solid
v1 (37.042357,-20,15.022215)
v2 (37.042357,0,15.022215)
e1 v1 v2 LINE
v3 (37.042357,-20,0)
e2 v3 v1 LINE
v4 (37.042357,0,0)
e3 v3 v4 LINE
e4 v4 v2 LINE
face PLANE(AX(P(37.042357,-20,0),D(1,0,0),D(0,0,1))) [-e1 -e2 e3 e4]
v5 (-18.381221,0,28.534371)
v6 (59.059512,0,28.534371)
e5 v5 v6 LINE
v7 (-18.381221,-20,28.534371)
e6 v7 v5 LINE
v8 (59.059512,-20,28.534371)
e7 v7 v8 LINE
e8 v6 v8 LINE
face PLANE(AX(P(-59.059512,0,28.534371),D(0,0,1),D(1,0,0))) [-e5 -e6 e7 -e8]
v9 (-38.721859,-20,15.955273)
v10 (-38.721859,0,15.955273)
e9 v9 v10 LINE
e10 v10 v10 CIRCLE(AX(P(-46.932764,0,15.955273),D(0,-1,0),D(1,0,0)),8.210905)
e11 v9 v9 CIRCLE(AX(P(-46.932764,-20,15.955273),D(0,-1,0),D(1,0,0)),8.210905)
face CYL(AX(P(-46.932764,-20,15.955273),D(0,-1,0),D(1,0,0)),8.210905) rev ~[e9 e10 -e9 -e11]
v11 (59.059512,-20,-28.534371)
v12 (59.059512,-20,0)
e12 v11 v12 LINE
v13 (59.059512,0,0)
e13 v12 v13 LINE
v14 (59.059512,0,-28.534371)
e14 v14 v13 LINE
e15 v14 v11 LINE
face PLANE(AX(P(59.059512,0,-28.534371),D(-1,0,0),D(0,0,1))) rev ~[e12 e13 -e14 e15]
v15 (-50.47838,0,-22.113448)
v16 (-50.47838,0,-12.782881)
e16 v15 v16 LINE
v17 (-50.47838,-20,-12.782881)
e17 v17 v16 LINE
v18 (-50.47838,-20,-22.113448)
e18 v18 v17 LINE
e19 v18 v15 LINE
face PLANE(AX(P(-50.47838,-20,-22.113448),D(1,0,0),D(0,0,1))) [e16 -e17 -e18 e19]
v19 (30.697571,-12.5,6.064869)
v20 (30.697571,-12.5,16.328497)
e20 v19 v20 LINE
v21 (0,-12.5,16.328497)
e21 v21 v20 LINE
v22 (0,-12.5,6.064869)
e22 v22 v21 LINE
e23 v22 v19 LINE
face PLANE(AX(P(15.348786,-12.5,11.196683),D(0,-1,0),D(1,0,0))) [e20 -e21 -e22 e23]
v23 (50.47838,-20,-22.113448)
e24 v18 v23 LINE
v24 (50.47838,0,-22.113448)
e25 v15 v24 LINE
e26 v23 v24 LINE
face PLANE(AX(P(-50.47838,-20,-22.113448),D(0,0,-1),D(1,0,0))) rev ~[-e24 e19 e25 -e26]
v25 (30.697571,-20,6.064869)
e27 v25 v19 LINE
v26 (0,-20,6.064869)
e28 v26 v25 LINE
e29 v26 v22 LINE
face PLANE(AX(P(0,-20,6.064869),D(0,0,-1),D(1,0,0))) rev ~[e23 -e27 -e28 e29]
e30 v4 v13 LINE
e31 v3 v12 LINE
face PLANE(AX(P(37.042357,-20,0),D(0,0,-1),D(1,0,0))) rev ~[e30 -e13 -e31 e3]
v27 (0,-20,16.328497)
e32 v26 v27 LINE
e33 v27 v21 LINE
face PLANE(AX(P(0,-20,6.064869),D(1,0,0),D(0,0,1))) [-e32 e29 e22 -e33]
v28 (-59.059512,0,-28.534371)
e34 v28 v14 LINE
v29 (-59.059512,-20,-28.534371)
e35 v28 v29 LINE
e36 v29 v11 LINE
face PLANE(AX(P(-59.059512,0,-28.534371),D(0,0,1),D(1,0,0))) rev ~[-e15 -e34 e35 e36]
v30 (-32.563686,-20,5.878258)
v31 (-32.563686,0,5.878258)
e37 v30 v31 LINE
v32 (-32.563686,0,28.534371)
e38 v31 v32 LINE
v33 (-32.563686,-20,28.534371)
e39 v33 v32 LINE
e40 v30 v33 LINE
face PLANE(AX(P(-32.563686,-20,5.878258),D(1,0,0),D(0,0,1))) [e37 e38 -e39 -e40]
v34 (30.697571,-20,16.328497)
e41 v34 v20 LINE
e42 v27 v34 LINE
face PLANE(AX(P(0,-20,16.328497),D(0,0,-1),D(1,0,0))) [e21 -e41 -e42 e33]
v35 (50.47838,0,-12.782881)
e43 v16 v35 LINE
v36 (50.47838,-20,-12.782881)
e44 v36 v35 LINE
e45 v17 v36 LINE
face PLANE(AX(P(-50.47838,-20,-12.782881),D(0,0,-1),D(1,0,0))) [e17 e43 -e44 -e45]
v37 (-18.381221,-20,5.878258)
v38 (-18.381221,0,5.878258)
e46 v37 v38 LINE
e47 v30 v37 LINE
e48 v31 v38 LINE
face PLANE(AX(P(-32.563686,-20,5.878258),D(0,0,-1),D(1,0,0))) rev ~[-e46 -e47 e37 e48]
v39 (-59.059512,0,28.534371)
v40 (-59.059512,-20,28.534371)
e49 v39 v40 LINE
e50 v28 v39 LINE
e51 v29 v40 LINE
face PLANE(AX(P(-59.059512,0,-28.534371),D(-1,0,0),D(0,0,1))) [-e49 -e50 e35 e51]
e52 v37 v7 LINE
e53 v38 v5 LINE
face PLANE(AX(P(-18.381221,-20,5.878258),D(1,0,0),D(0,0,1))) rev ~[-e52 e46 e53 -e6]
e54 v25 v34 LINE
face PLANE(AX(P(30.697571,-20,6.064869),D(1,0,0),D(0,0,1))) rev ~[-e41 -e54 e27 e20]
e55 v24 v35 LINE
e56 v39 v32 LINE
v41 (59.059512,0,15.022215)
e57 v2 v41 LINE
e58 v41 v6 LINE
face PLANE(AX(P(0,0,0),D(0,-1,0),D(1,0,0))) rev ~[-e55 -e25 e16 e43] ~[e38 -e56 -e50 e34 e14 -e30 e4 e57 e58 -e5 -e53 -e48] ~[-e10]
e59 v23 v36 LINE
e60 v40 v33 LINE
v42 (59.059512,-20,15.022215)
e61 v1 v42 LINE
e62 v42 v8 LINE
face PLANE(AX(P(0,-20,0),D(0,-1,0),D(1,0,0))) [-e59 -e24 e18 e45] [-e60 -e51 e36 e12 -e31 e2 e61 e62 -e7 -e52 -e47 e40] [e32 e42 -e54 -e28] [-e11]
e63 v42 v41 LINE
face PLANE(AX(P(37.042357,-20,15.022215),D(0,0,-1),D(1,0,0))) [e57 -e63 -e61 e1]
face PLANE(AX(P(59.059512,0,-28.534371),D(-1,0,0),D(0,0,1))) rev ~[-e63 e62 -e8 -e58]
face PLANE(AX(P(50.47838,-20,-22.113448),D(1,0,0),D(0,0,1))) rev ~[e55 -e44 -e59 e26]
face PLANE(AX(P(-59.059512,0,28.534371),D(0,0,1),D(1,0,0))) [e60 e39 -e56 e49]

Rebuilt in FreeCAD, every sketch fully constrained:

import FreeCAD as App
import Part
import Sketcher
from FreeCAD import Vector
Q = App.Units.Quantity


def add_polygon(sketch, points):
    """Adds a closed chain of lines whose ends are joined by coincident constraints."""
    first, n = sketch.GeometryCount, len(points)
    for a, b in zip(points, points[1:] + points[:1]):
        sketch.addGeometry(Part.LineSegment(App.Vector(*a, 0), App.Vector(*b, 0)), False)
    for i in range(n):
        sketch.addConstraint(Sketcher.Constraint("Coincident", first + i, 2, first + (i + 1) % n, 1))

doc = App.newDocument("Part")
body = doc.addObject("PartDesign::Body", "Body")

# Sketch on XZ plane
sketch1 = body.newObject("Sketcher::SketchObject", "Sketch")
sketch1.AttachmentSupport = (doc.getObject("XZ_Plane"), [""])
sketch1.MapMode = "FlatFace"
add_polygon(sketch1, [(-59, 29), (-59, -29), (59, -29), (59, 29)])  # lines 0-3
sketch1.addConstraint([
    Sketcher.Constraint("Vertical", 0),
    Sketcher.Constraint("Horizontal", 1),
    Sketcher.Constraint("Vertical", 2),
    Sketcher.Constraint("Horizontal", 3),
    Sketcher.Constraint("Symmetric", 0, 2, 2, 2, -1, 1),
    Sketcher.Constraint("DistanceX", 1, 1, 1, 2, Q("118.119024 mm")),
    Sketcher.Constraint("DistanceY", 0, 2, 0, 1, Q("57.068743 mm")),
])
pad1 = body.newObject("PartDesign::Pad", "Pad")
pad1.Profile = sketch1
pad1.Length = 20

# Sketch on XZ plane
sketch2 = body.newObject("Sketcher::SketchObject", "Sketch001")
sketch2.AttachmentSupport = (doc.getObject("XZ_Plane"), [""])
sketch2.MapMode = "FlatFace"
sketch2.AttachmentOffset = App.Placement(Vector(0, 0, 20), App.Rotation())
sketch2.addGeometry(Part.Circle(Vector(-47, 16, 0), Vector(0, 0, 1), 8), False)
sketch2.addConstraint([
    Sketcher.Constraint("Diameter", 0, Q("16.42181 mm")),
    Sketcher.Constraint("DistanceX", 0, 3, -1, 1, Q("46.932764 mm")),
    Sketcher.Constraint("DistanceY", -1, 1, 0, 3, Q("15.955273 mm")),
])
pocket1 = body.newObject("PartDesign::Pocket", "Pocket")
pocket1.Profile = sketch2
pocket1.Type = "ThroughAll"

# Sketch on XZ plane
sketch3 = body.newObject("Sketcher::SketchObject", "Sketch002")
sketch3.AttachmentSupport = (doc.getObject("XZ_Plane"), [""])
sketch3.MapMode = "FlatFace"
sketch3.AttachmentOffset = App.Placement(Vector(0, 0, 20), App.Rotation())
add_polygon(sketch3, [(-33, 29), (-33, 6), (-18, 6), (-18, 29)])  # lines 0-3
sketch3.addConstraint([
    Sketcher.Constraint("Vertical", 0),
    Sketcher.Constraint("Horizontal", 1),
    Sketcher.Constraint("Vertical", 2),
    Sketcher.Constraint("Horizontal", 3),
    Sketcher.Constraint("DistanceX", 1, 1, 1, 2, Q("14.182465 mm")),
    Sketcher.Constraint("DistanceY", 0, 2, 0, 1, Q("22.656113 mm")),
    Sketcher.Constraint("DistanceY", -1, 1, 0, 2, Q("5.878258 mm")),
    Sketcher.Constraint("DistanceX", 1, 2, -1, 1, Q("18.381221 mm")),
])
pocket2 = body.newObject("PartDesign::Pocket", "Pocket001")
pocket2.Profile = sketch3
pocket2.Type = "ThroughAll"

# Sketch on XZ plane
sketch4 = body.newObject("Sketcher::SketchObject", "Sketch003")
sketch4.AttachmentSupport = (doc.getObject("XZ_Plane"), [""])
sketch4.MapMode = "FlatFace"
sketch4.AttachmentOffset = App.Placement(Vector(0, 0, 20), App.Rotation())
add_polygon(sketch4, [(0, 16), (0, 6), (31, 6), (31, 16)])  # lines 0-3
sketch4.addConstraint([
    Sketcher.Constraint("Vertical", 0),
    Sketcher.Constraint("Horizontal", 1),
    Sketcher.Constraint("Vertical", 2),
    Sketcher.Constraint("Horizontal", 3),
    Sketcher.Constraint("PointOnObject", 0, 2, -2),
    Sketcher.Constraint("DistanceX", 1, 1, 1, 2, Q("30.697571 mm")),
    Sketcher.Constraint("DistanceY", 0, 2, 0, 1, Q("10.263627 mm")),
    Sketcher.Constraint("DistanceY", -1, 1, 0, 2, Q("6.064869 mm")),
])
pocket3 = body.newObject("PartDesign::Pocket", "Pocket002")
pocket3.Profile = sketch4
pocket3.Length = 7.5

# Sketch on XZ plane
sketch5 = body.newObject("Sketcher::SketchObject", "Sketch004")
sketch5.AttachmentSupport = (doc.getObject("XZ_Plane"), [""])
sketch5.MapMode = "FlatFace"
sketch5.AttachmentOffset = App.Placement(Vector(0, 0, 20), App.Rotation())
add_polygon(sketch5, [(37, 15), (37, 0), (59, 0), (59, 15)])  # lines 0-3
sketch5.addConstraint([
    Sketcher.Constraint("Vertical", 0),
    Sketcher.Constraint("Horizontal", 1),
    Sketcher.Constraint("Vertical", 2),
    Sketcher.Constraint("Horizontal", 3),
    Sketcher.Constraint("PointOnObject", 0, 2, -1),
    Sketcher.Constraint("DistanceX", 1, 1, 1, 2, Q("22.017155 mm")),
    Sketcher.Constraint("DistanceY", 0, 2, 0, 1, Q("15.022215 mm")),
    Sketcher.Constraint("DistanceX", -1, 1, 1, 2, Q("59.059512 mm")),
])
pocket4 = body.newObject("PartDesign::Pocket", "Pocket003")
pocket4.Profile = sketch5
pocket4.Type = "ThroughAll"

# Sketch on XZ plane
sketch6 = body.newObject("Sketcher::SketchObject", "Sketch005")
sketch6.AttachmentSupport = (doc.getObject("XZ_Plane"), [""])
sketch6.MapMode = "FlatFace"
sketch6.AttachmentOffset = App.Placement(Vector(0, 0, 20), App.Rotation())
add_polygon(sketch6, [(-50, -13), (-50, -22), (50, -22), (50, -13)])  # lines 0-3
sketch6.addConstraint([
    Sketcher.Constraint("Vertical", 0),
    Sketcher.Constraint("Horizontal", 1),
    Sketcher.Constraint("Vertical", 2),
    Sketcher.Constraint("Horizontal", 3),
    Sketcher.Constraint("DistanceX", 1, 1, 1, 2, Q("100.95676 mm")),
    Sketcher.Constraint("DistanceY", 0, 2, 0, 1, Q("9.330567 mm")),
    Sketcher.Constraint("DistanceX", 0, 2, -1, 1, Q("50.47838 mm")),
    Sketcher.Constraint("DistanceY", 0, 2, -1, 1, Q("22.113448 mm")),
])
pocket5 = body.newObject("PartDesign::Pocket", "Pocket004")
pocket5.Profile = sketch6
pocket5.Type = "ThroughAll"

doc.recompute()
